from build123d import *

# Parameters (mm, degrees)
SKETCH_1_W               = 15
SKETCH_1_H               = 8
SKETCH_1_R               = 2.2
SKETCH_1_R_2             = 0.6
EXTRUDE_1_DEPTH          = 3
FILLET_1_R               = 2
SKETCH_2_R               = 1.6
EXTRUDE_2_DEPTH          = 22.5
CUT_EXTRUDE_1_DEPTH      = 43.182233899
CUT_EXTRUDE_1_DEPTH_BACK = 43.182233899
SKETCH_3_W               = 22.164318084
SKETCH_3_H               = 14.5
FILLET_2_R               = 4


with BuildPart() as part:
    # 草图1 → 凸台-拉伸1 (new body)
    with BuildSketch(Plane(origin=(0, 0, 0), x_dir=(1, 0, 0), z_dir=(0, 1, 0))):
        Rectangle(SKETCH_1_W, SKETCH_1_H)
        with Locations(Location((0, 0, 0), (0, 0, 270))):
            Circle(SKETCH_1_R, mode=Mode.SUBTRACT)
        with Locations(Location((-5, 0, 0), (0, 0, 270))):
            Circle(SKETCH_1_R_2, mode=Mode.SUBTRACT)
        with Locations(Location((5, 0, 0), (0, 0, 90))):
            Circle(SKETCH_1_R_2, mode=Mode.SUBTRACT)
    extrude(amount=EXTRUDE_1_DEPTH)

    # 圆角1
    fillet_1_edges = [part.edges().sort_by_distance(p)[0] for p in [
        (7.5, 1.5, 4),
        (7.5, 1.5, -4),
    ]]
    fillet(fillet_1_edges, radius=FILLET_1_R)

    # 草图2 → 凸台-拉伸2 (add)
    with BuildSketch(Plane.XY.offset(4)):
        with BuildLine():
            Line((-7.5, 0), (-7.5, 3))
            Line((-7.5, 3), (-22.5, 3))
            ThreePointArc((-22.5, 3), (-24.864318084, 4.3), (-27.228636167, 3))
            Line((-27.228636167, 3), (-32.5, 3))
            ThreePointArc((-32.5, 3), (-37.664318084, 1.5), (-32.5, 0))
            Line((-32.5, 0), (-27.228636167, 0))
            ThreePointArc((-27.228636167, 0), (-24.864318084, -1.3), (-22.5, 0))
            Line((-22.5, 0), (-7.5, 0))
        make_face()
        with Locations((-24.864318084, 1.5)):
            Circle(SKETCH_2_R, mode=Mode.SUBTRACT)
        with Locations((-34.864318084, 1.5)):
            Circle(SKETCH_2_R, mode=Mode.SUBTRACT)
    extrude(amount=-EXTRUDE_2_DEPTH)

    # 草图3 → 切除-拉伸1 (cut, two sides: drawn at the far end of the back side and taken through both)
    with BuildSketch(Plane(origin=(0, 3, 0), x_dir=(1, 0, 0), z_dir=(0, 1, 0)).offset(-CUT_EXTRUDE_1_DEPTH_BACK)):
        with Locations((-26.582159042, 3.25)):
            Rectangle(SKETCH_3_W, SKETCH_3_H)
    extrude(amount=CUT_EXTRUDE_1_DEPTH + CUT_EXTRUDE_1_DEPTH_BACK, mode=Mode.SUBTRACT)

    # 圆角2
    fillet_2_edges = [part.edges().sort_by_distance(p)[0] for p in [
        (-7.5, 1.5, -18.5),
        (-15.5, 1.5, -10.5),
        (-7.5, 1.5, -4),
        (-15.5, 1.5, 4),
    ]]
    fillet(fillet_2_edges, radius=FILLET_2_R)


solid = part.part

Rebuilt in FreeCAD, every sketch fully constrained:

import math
import FreeCAD as App
import Part
import Sketcher

V = App.Vector


def edges_at(feature, points):
    """Names of the edges that pass closest to the given points."""
    edges = feature.Shape.Edges
    near = lambda p: min(range(len(edges)), key=lambda i: edges[i].distToShape(Part.Vertex(*p))[0])
    return sorted({f"Edge{near(p) + 1}" for p in points})


def add_polygon(sketch, points):
    """Adds a closed chain of lines whose ends are joined by coincident constraints."""
    first, n = sketch.GeometryCount, len(points)
    for a, b in zip(points, points[1:] + points[:1]):
        sketch.addGeometry(Part.LineSegment(App.Vector(*a, 0), App.Vector(*b, 0)), False)
    for i in range(n):
        sketch.addConstraint(Sketcher.Constraint("Coincident", first + i, 2, first + (i + 1) % n, 1))

doc = App.newDocument("Part")
body = doc.addObject("PartDesign::Body", "Body")

sketch1 = doc.addObject("Sketcher::SketchObject", "Sketch")
body.addObject(sketch1)
sketch1.AttachmentSupport = (doc.XZ_Plane, [""])
sketch1.MapMode = "FlatFace"
add_polygon(sketch1, [(-7.5, -4), (-7.5, 4), (7.5, 4), (7.5, -4)])
sketch1.addGeometry(Part.Circle(V(-5, 0, 0), V(0, 0, 1), 0.6), False)
sketch1.addGeometry(Part.Circle(V(0, 0, 0), V(0, 0, 1), 2.2), False)
sketch1.addGeometry(Part.Circle(V(5, 0, 0), V(0, 0, 1), 0.6), False)
sketch1.addConstraint([
    Sketcher.Constraint("Vertical", 0),
    Sketcher.Constraint("Horizontal", 1),
    Sketcher.Constraint("Vertical", 2),
    Sketcher.Constraint("Horizontal", 3),
    Sketcher.Constraint("Coincident", 5, 3, -1, 1),
    Sketcher.Constraint("Equal", 4, 6),
    Sketcher.Constraint("Symmetric", 4, 3, 6, 3, -1, 1),
    Sketcher.Constraint("Symmetric", 0, 2, 2, 2, -1, 1),
    Sketcher.Constraint("PointOnObject", 4, 3, -1),
    Sketcher.Constraint("Diameter", 4, 1.2),
    Sketcher.Constraint("Diameter", 5, 4.4),
    Sketcher.Constraint("DistanceX", 1, 1, 1, 2, 15.0),
    Sketcher.Constraint("DistanceY", 0, 1, 0, 2, 8.0),
    Sketcher.Constraint("DistanceX", 4, 3, -1, 1, 5.0),
])
pad1 = doc.addObject("PartDesign::Pad", "Pad")
body.addObject(pad1)
pad1.Profile = sketch1
pad1.Length = 3
pad1.Reversed = True
doc.recompute()

fillet = doc.addObject("PartDesign::Fillet", "Fillet")
body.addObject(fillet)
fillet.Base = (pad1, edges_at(pad1, [(7.5, 1.5, 4), (7.5, 1.5, -4)]))
fillet.Radius = 2

sketch2 = doc.addObject("Sketcher::SketchObject", "Sketch001")
body.addObject(sketch2)
sketch2.AttachmentSupport = (doc.XY_Plane, [""])
sketch2.MapMode = "FlatFace"
sketch2.AttachmentOffset = App.Placement(V(0, 0, 4), App.Rotation())
sketch2.addGeometry([
    Part.LineSegment(V(-7.5, 0, 0), V(-7.5, 3, 0)),
    Part.LineSegment(V(-7.5, 3, 0), V(-22.5, 3, 0)),
    Part.ArcOfCircle(Part.Circle(V(-24.864318, 1.5, 0), V(0, 0, 1), 2.8), math.radians(32.392365), math.radians(147.607635)),
    Part.LineSegment(V(-27.228636, 3, 0), V(-32.5, 3, 0)),
    Part.ArcOfCircle(Part.Circle(V(-34.864318, 1.5, 0), V(0, 0, 1), 2.8), math.radians(32.392365), math.radians(327.607635)),
    Part.LineSegment(V(-32.5, 0, 0), V(-27.228636, 0, 0)),
    Part.ArcOfCircle(Part.Circle(V(-24.864318, 1.5, 0), V(0, 0, 1), 2.8), math.radians(-147.607635), math.radians(-32.392365)),
    Part.LineSegment(V(-22.5, 0, 0), V(-7.5, 0, 0)),
    Part.Circle(V(-34.864318, 1.5, 0), V(0, 0, 1), 1.6),
    Part.Circle(V(-24.864318, 1.5, 0), V(0, 0, 1), 1.6),
], False)
sketch2.addConstraint([
    Sketcher.Constraint("Coincident", 0, 2, 1, 1),
    Sketcher.Constraint("Coincident", 1, 2, 2, 1),
    Sketcher.Constraint("Coincident", 2, 2, 3, 1),
    Sketcher.Constraint("Coincident", 3, 2, 4, 1),
    Sketcher.Constraint("Coincident", 4, 2, 5, 1),
    Sketcher.Constraint("Coincident", 5, 2, 6, 1),
    Sketcher.Constraint("Coincident", 6, 2, 7, 1),
    Sketcher.Constraint("Coincident", 7, 2, 0, 1),
    Sketcher.Constraint("Vertical", 0),
    Sketcher.Constraint("Horizontal", 1),
    Sketcher.Constraint("Horizontal", 3),
    Sketcher.Constraint("Horizontal", 5),
    Sketcher.Constraint("Horizontal", 7),
    Sketcher.Constraint("Coincident", 6, 3, 2, 3),
    Sketcher.Constraint("Coincident", 8, 3, 4, 3),
    Sketcher.Constraint("Coincident", 9, 3, 2, 3),
    Sketcher.Constraint("Equal", 2, 4),
    Sketcher.Constraint("Equal", 4, 6),
    Sketcher.Constraint("Equal", 8, 9),
    Sketcher.Constraint("PointOnObject", 4, 2, -1),
    Sketcher.Constraint("PointOnObject", 6, 2, -1),
    Sketcher.Constraint("Horizontal", 2, 3, 4, 3),
    Sketcher.Constraint("Horizontal", 1, 2, 2, 2),
    Sketcher.Constraint("Vertical", 3, 2, 4, 2),
    Sketcher.Constraint("Diameter", 8, 3.2),
    Sketcher.Constraint("Radius", 2, 2.8),
    Sketcher.Constraint("DistanceX", 1, 2, 1, 1, 15.0),
    Sketcher.Constraint("DistanceY", 0, 1, 0, 2, 3.0),
    Sketcher.Constraint("DistanceX", 4, 3, 2, 3, 10.0),
    Sketcher.Constraint("DistanceX", 0, 2, -1, 1, 7.5),
])
pad2 = doc.addObject("PartDesign::Pad", "Pad001")
body.addObject(pad2)
pad2.Profile = sketch2
pad2.Length = 22.5
pad2.Reversed = True

sketch3 = doc.addObject("Sketcher::SketchObject", "Sketch002")
body.addObject(sketch3)
sketch3.AttachmentSupport = (doc.XZ_Plane, [""])
sketch3.MapMode = "FlatFace"
sketch3.AttachmentOffset = App.Placement(V(0, 0, -3), App.Rotation())
add_polygon(sketch3, [(-37.664318, -10.5), (-37.664318, 4), (-15.5, 4), (-15.5, -10.5)])
sketch3.addConstraint([
    Sketcher.Constraint("Vertical", 0),
    Sketcher.Constraint("Horizontal", 1),
    Sketcher.Constraint("Vertical", 2),
    Sketcher.Constraint("Horizontal", 3),
    Sketcher.Constraint("DistanceY", 0, 1, 0, 2, 14.5),
    Sketcher.Constraint("DistanceY", -1, 1, 0, 2, 4.0),
    Sketcher.Constraint("DistanceX", 1, 2, -1, 1, 15.5),
    Sketcher.Constraint("DistanceX", 1, 1, 1, 2, 22.164318),
])
pocket1 = doc.addObject("PartDesign::Pocket", "Pocket")
body.addObject(pocket1)
pocket1.Profile = sketch3
pocket1.Type = "ThroughAll"
pocket1.Midplane = True
doc.recompute()

fillet2 = doc.addObject("PartDesign::Fillet", "Fillet001")
body.addObject(fillet2)
fillet2.Base = (pocket1, edges_at(pocket1, [
    (-7.5, 1.5, -18.5),
    (-15.5, 1.5, -10.5),
    (-7.5, 1.5, -4),
    (-15.5, 1.5, 4),
]))
fillet2.Radius = 4

doc.recompute()
